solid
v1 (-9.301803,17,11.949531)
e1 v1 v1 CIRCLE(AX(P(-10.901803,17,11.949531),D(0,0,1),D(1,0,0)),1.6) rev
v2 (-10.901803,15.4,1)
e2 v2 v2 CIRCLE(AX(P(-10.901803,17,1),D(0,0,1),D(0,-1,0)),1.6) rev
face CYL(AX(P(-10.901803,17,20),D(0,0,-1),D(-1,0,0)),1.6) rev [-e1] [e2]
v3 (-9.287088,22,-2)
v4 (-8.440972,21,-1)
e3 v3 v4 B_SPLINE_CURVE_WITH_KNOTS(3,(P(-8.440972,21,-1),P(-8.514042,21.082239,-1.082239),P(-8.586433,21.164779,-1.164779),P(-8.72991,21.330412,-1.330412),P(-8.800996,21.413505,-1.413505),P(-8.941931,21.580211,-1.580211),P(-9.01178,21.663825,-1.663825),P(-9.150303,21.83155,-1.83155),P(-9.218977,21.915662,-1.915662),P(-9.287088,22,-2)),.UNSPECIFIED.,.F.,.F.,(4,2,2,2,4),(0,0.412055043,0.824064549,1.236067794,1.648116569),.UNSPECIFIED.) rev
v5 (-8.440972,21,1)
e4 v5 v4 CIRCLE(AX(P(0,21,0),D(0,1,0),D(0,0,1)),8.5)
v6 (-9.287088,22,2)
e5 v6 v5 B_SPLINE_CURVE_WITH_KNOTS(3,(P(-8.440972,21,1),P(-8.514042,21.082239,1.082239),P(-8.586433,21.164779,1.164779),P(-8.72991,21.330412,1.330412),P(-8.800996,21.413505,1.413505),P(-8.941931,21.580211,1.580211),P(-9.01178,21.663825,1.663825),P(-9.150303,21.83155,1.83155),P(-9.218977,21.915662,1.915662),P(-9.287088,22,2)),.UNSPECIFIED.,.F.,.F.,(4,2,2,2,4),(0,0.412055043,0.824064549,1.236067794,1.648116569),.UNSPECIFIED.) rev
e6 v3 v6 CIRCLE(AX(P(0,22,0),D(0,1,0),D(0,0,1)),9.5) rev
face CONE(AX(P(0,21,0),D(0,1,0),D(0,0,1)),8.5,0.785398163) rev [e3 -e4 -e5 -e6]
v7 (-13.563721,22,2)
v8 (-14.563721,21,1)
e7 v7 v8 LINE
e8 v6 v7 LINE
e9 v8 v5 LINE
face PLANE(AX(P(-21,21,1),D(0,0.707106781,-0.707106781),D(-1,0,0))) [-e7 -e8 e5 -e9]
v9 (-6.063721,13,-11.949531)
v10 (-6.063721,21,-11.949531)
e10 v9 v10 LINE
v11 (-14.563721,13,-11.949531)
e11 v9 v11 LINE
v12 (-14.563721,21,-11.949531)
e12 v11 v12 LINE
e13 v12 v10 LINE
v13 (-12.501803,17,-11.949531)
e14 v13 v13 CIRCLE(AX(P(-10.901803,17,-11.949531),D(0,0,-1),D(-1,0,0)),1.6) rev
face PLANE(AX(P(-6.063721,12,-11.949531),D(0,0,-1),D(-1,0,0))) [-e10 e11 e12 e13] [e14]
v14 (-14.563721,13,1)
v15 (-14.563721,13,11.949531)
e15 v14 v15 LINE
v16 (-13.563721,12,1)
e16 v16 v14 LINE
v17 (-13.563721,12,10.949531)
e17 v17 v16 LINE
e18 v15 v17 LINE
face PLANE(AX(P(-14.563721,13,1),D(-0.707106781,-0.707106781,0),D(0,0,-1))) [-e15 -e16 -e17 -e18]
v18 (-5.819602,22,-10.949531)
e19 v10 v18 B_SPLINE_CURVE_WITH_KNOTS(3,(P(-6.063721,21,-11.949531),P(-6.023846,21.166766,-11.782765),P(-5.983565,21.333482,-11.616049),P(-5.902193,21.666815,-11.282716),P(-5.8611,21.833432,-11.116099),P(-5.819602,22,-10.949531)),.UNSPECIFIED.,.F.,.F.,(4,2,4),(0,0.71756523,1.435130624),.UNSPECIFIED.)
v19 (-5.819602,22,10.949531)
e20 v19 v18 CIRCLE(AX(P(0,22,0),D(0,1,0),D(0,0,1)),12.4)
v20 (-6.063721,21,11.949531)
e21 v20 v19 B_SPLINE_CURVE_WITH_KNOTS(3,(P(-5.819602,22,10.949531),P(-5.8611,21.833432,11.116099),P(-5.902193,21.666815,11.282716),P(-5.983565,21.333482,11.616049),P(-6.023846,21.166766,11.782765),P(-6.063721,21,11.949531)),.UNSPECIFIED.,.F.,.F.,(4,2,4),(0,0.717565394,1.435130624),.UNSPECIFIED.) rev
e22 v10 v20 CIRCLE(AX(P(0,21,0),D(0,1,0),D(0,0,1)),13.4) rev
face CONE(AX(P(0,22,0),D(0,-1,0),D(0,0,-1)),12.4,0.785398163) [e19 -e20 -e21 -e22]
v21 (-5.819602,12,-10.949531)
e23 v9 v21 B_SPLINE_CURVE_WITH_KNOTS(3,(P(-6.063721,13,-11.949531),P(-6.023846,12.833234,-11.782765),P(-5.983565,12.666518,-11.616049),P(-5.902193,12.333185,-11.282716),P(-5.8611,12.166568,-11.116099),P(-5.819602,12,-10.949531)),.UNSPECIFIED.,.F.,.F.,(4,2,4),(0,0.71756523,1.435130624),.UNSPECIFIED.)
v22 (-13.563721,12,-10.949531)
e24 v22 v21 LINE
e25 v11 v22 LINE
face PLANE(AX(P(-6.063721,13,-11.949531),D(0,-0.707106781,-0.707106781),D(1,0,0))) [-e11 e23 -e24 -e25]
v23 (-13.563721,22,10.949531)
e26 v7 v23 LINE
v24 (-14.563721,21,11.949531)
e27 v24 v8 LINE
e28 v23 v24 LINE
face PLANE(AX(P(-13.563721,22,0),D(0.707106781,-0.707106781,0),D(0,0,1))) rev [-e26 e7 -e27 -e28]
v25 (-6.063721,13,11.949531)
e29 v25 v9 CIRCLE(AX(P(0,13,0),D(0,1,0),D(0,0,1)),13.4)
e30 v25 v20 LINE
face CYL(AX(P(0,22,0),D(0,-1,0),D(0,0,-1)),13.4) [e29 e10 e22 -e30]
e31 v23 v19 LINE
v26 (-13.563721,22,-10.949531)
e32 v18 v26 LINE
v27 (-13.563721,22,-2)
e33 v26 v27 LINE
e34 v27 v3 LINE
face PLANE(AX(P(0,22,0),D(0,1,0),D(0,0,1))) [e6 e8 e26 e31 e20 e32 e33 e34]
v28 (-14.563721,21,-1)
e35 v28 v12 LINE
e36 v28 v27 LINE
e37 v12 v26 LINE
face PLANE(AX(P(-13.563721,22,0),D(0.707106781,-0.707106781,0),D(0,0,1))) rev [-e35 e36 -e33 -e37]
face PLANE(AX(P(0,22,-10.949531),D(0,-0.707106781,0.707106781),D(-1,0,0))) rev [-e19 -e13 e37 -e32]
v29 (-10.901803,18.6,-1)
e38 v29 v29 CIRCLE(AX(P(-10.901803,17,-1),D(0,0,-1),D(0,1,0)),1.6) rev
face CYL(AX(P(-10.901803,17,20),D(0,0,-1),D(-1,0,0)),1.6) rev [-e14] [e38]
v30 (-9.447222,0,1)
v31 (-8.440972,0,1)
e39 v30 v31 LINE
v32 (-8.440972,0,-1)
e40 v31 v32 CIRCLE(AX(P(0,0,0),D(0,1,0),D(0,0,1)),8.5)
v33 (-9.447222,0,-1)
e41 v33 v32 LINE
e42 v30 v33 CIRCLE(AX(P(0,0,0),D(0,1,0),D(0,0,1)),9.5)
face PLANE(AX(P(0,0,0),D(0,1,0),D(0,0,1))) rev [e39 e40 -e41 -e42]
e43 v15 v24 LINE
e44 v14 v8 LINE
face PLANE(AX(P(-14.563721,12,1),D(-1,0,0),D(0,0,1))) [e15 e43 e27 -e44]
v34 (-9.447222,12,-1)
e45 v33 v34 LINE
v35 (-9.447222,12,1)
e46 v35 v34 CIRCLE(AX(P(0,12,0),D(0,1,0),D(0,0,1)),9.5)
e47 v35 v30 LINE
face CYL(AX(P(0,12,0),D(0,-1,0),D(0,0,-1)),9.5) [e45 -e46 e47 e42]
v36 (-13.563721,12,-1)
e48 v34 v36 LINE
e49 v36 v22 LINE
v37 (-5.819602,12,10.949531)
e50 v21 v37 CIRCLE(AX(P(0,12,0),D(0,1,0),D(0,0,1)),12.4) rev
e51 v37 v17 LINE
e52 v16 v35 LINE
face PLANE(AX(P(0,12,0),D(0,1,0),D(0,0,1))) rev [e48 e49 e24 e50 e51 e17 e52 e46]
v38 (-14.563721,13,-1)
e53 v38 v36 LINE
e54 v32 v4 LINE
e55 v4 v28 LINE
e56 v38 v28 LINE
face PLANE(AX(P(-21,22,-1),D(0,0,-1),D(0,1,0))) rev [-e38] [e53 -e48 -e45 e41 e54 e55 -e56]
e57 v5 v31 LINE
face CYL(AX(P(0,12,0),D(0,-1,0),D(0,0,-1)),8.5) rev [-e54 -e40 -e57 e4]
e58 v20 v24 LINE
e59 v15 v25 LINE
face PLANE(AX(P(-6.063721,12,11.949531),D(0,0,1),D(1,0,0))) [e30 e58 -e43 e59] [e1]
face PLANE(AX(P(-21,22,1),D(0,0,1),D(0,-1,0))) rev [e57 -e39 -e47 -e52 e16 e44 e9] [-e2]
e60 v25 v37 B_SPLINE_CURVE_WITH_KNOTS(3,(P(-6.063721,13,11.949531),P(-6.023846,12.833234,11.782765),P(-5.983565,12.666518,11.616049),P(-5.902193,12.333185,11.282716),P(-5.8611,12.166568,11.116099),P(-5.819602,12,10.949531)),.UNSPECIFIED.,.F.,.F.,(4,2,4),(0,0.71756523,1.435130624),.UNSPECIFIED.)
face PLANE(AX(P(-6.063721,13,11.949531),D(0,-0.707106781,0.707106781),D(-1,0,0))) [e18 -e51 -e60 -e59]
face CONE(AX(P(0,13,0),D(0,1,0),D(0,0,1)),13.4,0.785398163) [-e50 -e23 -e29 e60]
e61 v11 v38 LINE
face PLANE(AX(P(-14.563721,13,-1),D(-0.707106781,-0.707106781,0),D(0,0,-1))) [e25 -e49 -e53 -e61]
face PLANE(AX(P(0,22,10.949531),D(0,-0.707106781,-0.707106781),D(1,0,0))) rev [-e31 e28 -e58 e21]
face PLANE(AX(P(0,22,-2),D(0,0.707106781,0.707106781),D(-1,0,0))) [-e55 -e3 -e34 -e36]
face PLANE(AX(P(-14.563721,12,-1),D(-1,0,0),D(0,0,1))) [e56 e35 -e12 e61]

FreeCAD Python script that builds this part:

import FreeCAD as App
import Part
import Sketcher


def edges_at(feature, points):
    """Names of the edges that pass closest to the given points."""
    edges = feature.Shape.Edges
    near = lambda p: min(range(len(edges)), key=lambda i: edges[i].distToShape(Part.Vertex(*p))[0])
    return sorted({f"Edge{near(p) + 1}" for p in points})


def add_polygon(sketch, points):
    """Adds a closed chain of lines whose ends are joined by coincident constraints."""
    first, n = sketch.GeometryCount, len(points)
    for a, b in zip(points, points[1:] + points[:1]):
        sketch.addGeometry(Part.LineSegment(App.Vector(*a, 0), App.Vector(*b, 0)), False)
    for i in range(n):
        sketch.addConstraint(Sketcher.Constraint("Coincident", first + i, 2, first + (i + 1) % n, 1))

doc = App.newDocument("Part")
params = doc.addObject("Spreadsheet::Sheet", "Params")
for row, (alias, value) in enumerate([
    ("sketch1_diameter", "19 mm"),
    ("sketch1_diameter2", "17 mm"),
    ("pad1_length", "12 mm"),
    ("sketch2_diameter", "17 mm"),
    ("sketch2_diameter2", "26.8 mm"),
    ("pad2_length", "10 mm"),
    ("sketch3_width", "22 mm"),
    ("sketch3_height", "2 mm"),
    ("pocket1_length", "21 mm"),
    ("sketch4_width", "8.5 mm"),
    ("pad3_length", "10 mm"),
    ("sketch5_diameter", "3.2 mm"),
    ("chamfer_size", "1 mm"),
], start=1):
    params.set(f"A{row}", alias)
    params.set(f"B{row}", "=" + value)
    params.setAlias(f"B{row}", alias)

body = doc.addObject("PartDesign::Body", "Body")

# Sketch on XZ plane
sketch1 = body.newObject("Sketcher::SketchObject", "Sketch")
sketch1.AttachmentSupport = (doc.getObject("XZ_Plane"), [""])
sketch1.MapMode = "FlatFace"
sketch1.addGeometry(Part.Circle(App.Vector(0, 0, 0), App.Vector(0, 0, 1), 10), False)
sketch1.addGeometry(Part.Circle(App.Vector(0, 0, 0), App.Vector(0, 0, 1), 8), False)
sketch1.addConstraint(Sketcher.Constraint("Coincident", 0, 3, -1, 1))
sketch1.addConstraint(Sketcher.Constraint("Coincident", 1, 3, -1, 1))
sketch1.addConstraint(Sketcher.Constraint("Diameter", 0, 19.0))
sketch1.addConstraint(Sketcher.Constraint("Diameter", 1, 17.0))
sketch1.setExpression("Constraints[2]", "Params.sketch1_diameter")
sketch1.setExpression("Constraints[3]", "Params.sketch1_diameter2")
pad1 = body.newObject("PartDesign::Pad", "Pad")
pad1.Profile = sketch1
pad1.setExpression("Length", "Params.pad1_length")
pad1.Reversed = True

# Sketch on XZ plane
sketch2 = body.newObject("Sketcher::SketchObject", "Sketch001")
sketch2.AttachmentSupport = (doc.getObject("XZ_Plane"), [""])
sketch2.MapMode = "FlatFace"
sketch2.AttachmentOffset = App.Placement(App.Vector(0, 0, -12), App.Rotation())
sketch2.addGeometry(Part.Circle(App.Vector(0, 0, 0), App.Vector(0, 0, 1), 13), False)
sketch2.addGeometry(Part.Circle(App.Vector(0, 0, 0), App.Vector(0, 0, 1), 8), False)
sketch2.addConstraint(Sketcher.Constraint("Coincident", 0, 3, -1, 1))
sketch2.addConstraint(Sketcher.Constraint("Coincident", 1, 3, -1, 1))
sketch2.addConstraint(Sketcher.Constraint("Diameter", 1, 17.0))
sketch2.addConstraint(Sketcher.Constraint("Diameter", 0, 26.8))
sketch2.setExpression("Constraints[2]", "Params.sketch2_diameter")
sketch2.setExpression("Constraints[3]", "Params.sketch2_diameter2")
pad2 = body.newObject("PartDesign::Pad", "Pad001")
pad2.Profile = sketch2
pad2.setExpression("Length", "Params.pad2_length")
pad2.Reversed = True

# Sketch on YZ plane
sketch3 = body.newObject("Sketcher::SketchObject", "Sketch002")
sketch3.AttachmentSupport = (doc.getObject("YZ_Plane"), [""])
sketch3.MapMode = "FlatFace"
add_polygon(sketch3, [(22, 1), (0, 1), (0, -1), (22, -1)])  # lines 0-3
sketch3.addConstraint(Sketcher.Constraint("Horizontal", 0))
sketch3.addConstraint(Sketcher.Constraint("Vertical", 1))
sketch3.addConstraint(Sketcher.Constraint("Horizontal", 2))
sketch3.addConstraint(Sketcher.Constraint("Vertical", 3))
sketch3.addConstraint(Sketcher.Constraint("Symmetric", 0, 2, 1, 2, -1, 1))
sketch3.addConstraint(Sketcher.Constraint("DistanceX", 0, 2, 0, 1, 22.0))
sketch3.addConstraint(Sketcher.Constraint("DistanceY", 1, 2, 1, 1, 2.0))
sketch3.setExpression("Constraints[9]", "Params.sketch3_width")
sketch3.setExpression("Constraints[10]", "Params.sketch3_height")
pocket1 = body.newObject("PartDesign::Pocket", "Pocket")
pocket1.Profile = sketch3
pocket1.setExpression("Length", "Params.pocket1_length")

# Sketch on XZ plane
sketch4 = body.newObject("Sketcher::SketchObject", "Sketch003")
sketch4.AttachmentSupport = (doc.getObject("XZ_Plane"), [""])
sketch4.MapMode = "FlatFace"
sketch4.AttachmentOffset = App.Placement(App.Vector(0, 0, -22), App.Rotation())
add_polygon(sketch4, [(-10, 1), (-15, 1), (-15, 12), (-6, 12)])  # lines 0-3
add_polygon(sketch4, [(-6, -12), (-15, -12), (-15, -1), (-10, -1)])  # lines 4-7
sketch4.addConstraint(Sketcher.Constraint("Horizontal", 0))
sketch4.addConstraint(Sketcher.Constraint("Vertical", 1))
sketch4.addConstraint(Sketcher.Constraint("Horizontal", 2))
sketch4.addConstraint(Sketcher.Constraint("Horizontal", 4))
sketch4.addConstraint(Sketcher.Constraint("Vertical", 5))
sketch4.addConstraint(Sketcher.Constraint("Horizontal", 6))
sketch4.addConstraint(Sketcher.Constraint("Symmetric", 1, 2, 4, 2, -1))
sketch4.addConstraint(Sketcher.Constraint("Symmetric", 3, 2, 6, 2, -1))
sketch4.addConstraint(Sketcher.Constraint("Vertical", 2, 2, 7, 2))
sketch4.addConstraint(Sketcher.Constraint("DistanceX", 2, 1, 2, 2, 8.5))
sketch4.addConstraint(Sketcher.Constraint("DistanceY", -1, 1, 0, 2, 1.0))
sketch4.addConstraint(Sketcher.Constraint("DistanceX", 0, 2, 0, 1, 5.045419))
sketch4.addConstraint(Sketcher.Constraint("DistanceY", 1, 1, 1, 2, 10.949531))
sketch4.addConstraint(Sketcher.Constraint("DistanceX", 3, 2, -1, 1, 9.518302))
sketch4.setExpression("Constraints[17]", "Params.sketch4_width")
pad3 = body.newObject("PartDesign::Pad", "Pad002")
pad3.Profile = sketch4
pad3.setExpression("Length", "Params.pad3_length")

# Sketch on XY plane
sketch5 = body.newObject("Sketcher::SketchObject", "Sketch004")
sketch5.AttachmentSupport = (doc.getObject("XY_Plane"), [""])
sketch5.MapMode = "FlatFace"
sketch5.AttachmentOffset = App.Placement(App.Vector(0, 0, -1), App.Rotation())
sketch5.addGeometry(Part.Circle(App.Vector(-10.9, 17, 0), App.Vector(0, 0, 1), 1.6), False)
sketch5.addConstraint(Sketcher.Constraint("Diameter", 0, 3.2))
sketch5.addConstraint(Sketcher.Constraint("DistanceY", -1, 1, 0, 3, 17.0))
sketch5.addConstraint(Sketcher.Constraint("DistanceX", 0, 3, -1, 1, 10.901803))
sketch5.setExpression("Constraints[0]", "Params.sketch5_diameter")
pocket2 = body.newObject("PartDesign::Pocket", "Pocket001")
pocket2.Profile = sketch5
pocket2.Type = "ThroughAll"
pocket2.Midplane = True
doc.recompute()

chamfer = body.newObject("PartDesign::Chamfer", "Chamfer")
chamfer.Base = (pocket2, edges_at(pocket2, [
    (0.501, 22, -8.485),
    (-11.502, 22, 1),
    (-11.502, 22, -1),
    (13.4, 22, 0),
    (13.4, 12, 0),
    (-10.314, 22, 11.95),
    (-14.564, 22, 6.475),
    (-10.314, 12, 11.95),
    (-14.564, 12, 6.475),
    (-10.314, 22, -11.95),
    (-14.564, 22, -6.475),
    (-14.564, 12, -6.475),
    (-10.314, 12, -11.95),
]))
chamfer.setExpression("Size", "Params.chamfer_size")

doc.recompute()
